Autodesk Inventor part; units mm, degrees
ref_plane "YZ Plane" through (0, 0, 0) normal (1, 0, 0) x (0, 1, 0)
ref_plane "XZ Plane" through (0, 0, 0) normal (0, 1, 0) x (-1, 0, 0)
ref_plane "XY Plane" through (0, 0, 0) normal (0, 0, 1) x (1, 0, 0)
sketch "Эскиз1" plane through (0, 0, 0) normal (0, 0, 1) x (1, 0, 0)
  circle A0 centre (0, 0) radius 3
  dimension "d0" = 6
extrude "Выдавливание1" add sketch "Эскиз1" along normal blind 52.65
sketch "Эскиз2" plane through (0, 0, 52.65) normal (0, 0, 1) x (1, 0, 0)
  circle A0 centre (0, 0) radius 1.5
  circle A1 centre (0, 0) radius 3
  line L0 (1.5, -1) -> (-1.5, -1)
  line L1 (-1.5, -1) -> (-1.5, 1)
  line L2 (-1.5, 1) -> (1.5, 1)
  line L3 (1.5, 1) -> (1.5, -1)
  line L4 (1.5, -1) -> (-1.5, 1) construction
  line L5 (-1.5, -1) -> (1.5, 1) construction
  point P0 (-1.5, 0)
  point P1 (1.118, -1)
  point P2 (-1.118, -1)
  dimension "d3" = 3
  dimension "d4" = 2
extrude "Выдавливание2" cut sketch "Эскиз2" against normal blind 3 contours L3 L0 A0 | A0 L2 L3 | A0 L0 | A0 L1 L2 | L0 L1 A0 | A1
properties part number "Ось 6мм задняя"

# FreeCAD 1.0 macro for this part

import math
import FreeCAD as App
import Part
import Sketcher
Q = App.Units.Quantity

doc = App.newDocument("Part")
body = doc.addObject("PartDesign::Body", "Body")

# Sketch on XY plane
sketch1 = body.newObject("Sketcher::SketchObject", "Sketch")
sketch1.AttachmentSupport = (doc.getObject("XY_Plane"), [""])
sketch1.MapMode = "FlatFace"
sketch1.addGeometry(Part.Circle(App.Vector(0, 0, 0), App.Vector(0, 0, 1), 3), False)
sketch1.addConstraint(Sketcher.Constraint("Coincident", 0, 3, -1, 1))
sketch1.addConstraint(Sketcher.Constraint("Diameter", 0, Q("6 mm")))
pad1 = body.newObject("PartDesign::Pad", "Pad")
pad1.Profile = sketch1
pad1.Length = 52.65

# Sketch on XY plane
sketch2 = body.newObject("Sketcher::SketchObject", "Sketch001")
sketch2.AttachmentSupport = (doc.getObject("XY_Plane"), [""])
sketch2.MapMode = "FlatFace"
sketch2.AttachmentOffset = App.Placement(App.Vector(0, 0, 52.65), App.Rotation())
sketch2.addGeometry(Part.Circle(App.Vector(0, 0, 0), App.Vector(0, 0, 1), 3), False)
sketch2.addGeometry(Part.LineSegment(App.Vector(1.1, -1, 0), App.Vector(-1.1, -1, 0)), False)
sketch2.addGeometry(Part.ArcOfCircle(Part.Circle(App.Vector(0, 0, 0), App.Vector(0, 0, 1), 1.5), math.radians(-42), math.radians(222)), False)
sketch2.addConstraint(Sketcher.Constraint("Coincident", 1, 1, 2, 1))
sketch2.addConstraint(Sketcher.Constraint("Coincident", 2, 2, 1, 2))
sketch2.addConstraint(Sketcher.Constraint("Horizontal", 1))
sketch2.addConstraint(Sketcher.Constraint("Coincident", 0, 3, -1, 1))
sketch2.addConstraint(Sketcher.Constraint("Coincident", 2, 3, -1, 1))
sketch2.addConstraint(Sketcher.Constraint("Diameter", 0, Q("6 mm")))
sketch2.addConstraint(Sketcher.Constraint("Radius", 2, Q("1.5 mm")))
sketch2.addConstraint(Sketcher.Constraint("DistanceY", 1, 1, -1, 1, Q("1 mm")))
pocket1 = body.newObject("PartDesign::Pocket", "Pocket")
pocket1.Profile = sketch2
pocket1.Length = 3

doc.recompute()
